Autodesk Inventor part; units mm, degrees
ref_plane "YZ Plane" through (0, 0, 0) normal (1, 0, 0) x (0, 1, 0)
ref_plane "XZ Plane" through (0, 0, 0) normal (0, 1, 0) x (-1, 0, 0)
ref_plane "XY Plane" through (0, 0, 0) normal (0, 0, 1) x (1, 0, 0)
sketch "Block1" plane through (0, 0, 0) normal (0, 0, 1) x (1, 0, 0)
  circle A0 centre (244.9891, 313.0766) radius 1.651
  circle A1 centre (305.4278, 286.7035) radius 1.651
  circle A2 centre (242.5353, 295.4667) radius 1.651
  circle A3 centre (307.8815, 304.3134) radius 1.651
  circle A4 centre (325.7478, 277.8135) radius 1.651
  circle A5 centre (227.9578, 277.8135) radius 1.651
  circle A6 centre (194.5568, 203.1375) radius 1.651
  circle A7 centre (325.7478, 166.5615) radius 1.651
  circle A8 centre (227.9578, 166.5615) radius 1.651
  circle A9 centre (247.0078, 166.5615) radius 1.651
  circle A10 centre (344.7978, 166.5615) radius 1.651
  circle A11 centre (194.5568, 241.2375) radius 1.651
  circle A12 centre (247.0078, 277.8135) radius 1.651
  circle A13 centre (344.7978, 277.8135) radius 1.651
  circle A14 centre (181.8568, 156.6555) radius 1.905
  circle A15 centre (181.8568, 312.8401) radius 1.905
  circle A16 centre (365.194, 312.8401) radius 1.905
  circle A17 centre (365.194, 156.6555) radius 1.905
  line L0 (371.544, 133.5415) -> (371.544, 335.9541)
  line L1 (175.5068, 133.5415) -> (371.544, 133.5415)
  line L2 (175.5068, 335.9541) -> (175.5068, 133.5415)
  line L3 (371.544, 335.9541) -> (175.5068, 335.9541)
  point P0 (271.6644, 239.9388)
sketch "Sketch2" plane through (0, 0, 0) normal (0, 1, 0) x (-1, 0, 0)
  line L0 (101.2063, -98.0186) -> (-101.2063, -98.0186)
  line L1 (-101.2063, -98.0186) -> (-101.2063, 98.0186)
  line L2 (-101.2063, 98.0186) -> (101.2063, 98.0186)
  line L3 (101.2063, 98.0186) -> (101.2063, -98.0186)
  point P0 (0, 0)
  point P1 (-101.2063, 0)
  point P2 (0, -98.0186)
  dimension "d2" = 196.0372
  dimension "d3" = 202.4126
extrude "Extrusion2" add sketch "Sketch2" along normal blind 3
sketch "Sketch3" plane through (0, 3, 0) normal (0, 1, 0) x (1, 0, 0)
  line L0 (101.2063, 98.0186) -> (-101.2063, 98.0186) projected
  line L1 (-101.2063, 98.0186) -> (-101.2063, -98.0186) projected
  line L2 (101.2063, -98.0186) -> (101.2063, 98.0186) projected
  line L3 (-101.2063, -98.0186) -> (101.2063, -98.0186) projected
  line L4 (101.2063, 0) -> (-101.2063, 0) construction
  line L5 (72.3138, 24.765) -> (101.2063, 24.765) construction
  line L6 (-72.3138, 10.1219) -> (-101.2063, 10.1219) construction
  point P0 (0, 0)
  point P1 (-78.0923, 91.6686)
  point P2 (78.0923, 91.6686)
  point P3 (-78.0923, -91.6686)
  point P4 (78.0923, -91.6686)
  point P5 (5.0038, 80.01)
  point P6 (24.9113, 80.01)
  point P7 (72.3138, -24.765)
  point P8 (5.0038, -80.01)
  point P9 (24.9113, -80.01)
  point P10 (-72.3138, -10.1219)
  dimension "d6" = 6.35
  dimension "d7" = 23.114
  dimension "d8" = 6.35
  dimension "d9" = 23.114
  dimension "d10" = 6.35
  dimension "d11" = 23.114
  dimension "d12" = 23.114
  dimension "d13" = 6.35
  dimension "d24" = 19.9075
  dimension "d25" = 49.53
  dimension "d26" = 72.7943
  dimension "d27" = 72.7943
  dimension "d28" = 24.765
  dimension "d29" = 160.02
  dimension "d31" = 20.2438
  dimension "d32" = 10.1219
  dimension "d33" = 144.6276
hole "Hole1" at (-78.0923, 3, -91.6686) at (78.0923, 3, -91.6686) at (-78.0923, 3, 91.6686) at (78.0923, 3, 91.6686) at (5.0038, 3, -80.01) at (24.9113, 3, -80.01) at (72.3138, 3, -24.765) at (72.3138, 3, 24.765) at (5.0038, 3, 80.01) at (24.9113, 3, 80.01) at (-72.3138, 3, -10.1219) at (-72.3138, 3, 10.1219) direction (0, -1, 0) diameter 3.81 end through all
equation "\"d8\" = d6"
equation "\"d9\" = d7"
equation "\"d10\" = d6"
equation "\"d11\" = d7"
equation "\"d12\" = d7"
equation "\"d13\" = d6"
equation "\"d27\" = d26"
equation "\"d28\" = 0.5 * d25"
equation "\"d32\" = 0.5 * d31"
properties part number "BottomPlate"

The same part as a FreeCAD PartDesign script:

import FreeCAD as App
import Part
import Sketcher

V = App.Vector
Q = App.Units.Quantity


def add_polygon(sketch, points):
    """Adds a closed chain of lines whose ends are joined by coincident constraints."""
    first, n = sketch.GeometryCount, len(points)
    for a, b in zip(points, points[1:] + points[:1]):
        sketch.addGeometry(Part.LineSegment(App.Vector(*a, 0), App.Vector(*b, 0)), False)
    for i in range(n):
        sketch.addConstraint(Sketcher.Constraint("Coincident", first + i, 2, first + (i + 1) % n, 1))

doc = App.newDocument("Part")
body = doc.addObject("PartDesign::Body", "Body")

sketch1 = body.newObject("Sketcher::SketchObject", "Sketch")
sketch1.AttachmentSupport = (doc.getObject("XZ_Plane"), [""])
sketch1.MapMode = "FlatFace"
add_polygon(sketch1, [(101.2063, -98.0186), (-101.2063, -98.0186), (-101.2063, 98.0186), (101.2063, 98.0186)])
sketch1.addConstraint(Sketcher.Constraint("Horizontal", 0))
sketch1.addConstraint(Sketcher.Constraint("Vertical", 1))
sketch1.addConstraint(Sketcher.Constraint("Horizontal", 2))
sketch1.addConstraint(Sketcher.Constraint("Vertical", 3))
sketch1.addConstraint(Sketcher.Constraint("Symmetric", 0, 2, 2, 2, -1, 1))
sketch1.addConstraint(Sketcher.Constraint("DistanceX", 0, 2, 0, 1, Q("7.969 in")))
sketch1.addConstraint(Sketcher.Constraint("DistanceY", 1, 1, 1, 2, Q("7.718 in")))
pad1 = body.newObject("PartDesign::Pad", "Pad")
pad1.Profile = sketch1
pad1.Length = Q("0.1181102 in")
pad1.Reversed = True

sketch2 = body.newObject("Sketcher::SketchObject", "Sketch001")
sketch2.AttachmentSupport = (doc.getObject("XZ_Plane"), [""])
sketch2.MapMode = "FlatFace"
sketch2.AttachmentOffset = App.Placement(V(0, 0, -0.1181102 * 25.4), App.Rotation())
sketch2.addGeometry(Part.Circle(V(-78.0923, -91.6686, 0), V(0, 0, 1), 1.905), False)
sketch2.addGeometry(Part.Circle(V(78.0923, -91.6686, 0), V(0, 0, 1), 1.905), False)
sketch2.addGeometry(Part.Circle(V(-78.0923, 91.6686, 0), V(0, 0, 1), 1.905), False)
sketch2.addGeometry(Part.Circle(V(78.0923, 91.6686, 0), V(0, 0, 1), 1.905), False)
sketch2.addGeometry(Part.Circle(V(5.0038, -80.01, 0), V(0, 0, 1), 1.905), False)
sketch2.addGeometry(Part.Circle(V(24.9113, -80.01, 0), V(0, 0, 1), 1.905), False)
sketch2.addGeometry(Part.Circle(V(72.3138, -24.765, 0), V(0, 0, 1), 1.905), False)
sketch2.addGeometry(Part.Circle(V(72.3138, 24.765, 0), V(0, 0, 1), 1.905), False)
sketch2.addGeometry(Part.Circle(V(5.0038, 80.01, 0), V(0, 0, 1), 1.905), False)
sketch2.addGeometry(Part.Circle(V(24.9113, 80.01, 0), V(0, 0, 1), 1.905), False)
sketch2.addGeometry(Part.Circle(V(-72.3138, -10.1219, 0), V(0, 0, 1), 1.905), False)
sketch2.addGeometry(Part.Circle(V(-72.3138, 10.1219, 0), V(0, 0, 1), 1.905), False)
sketch2.addConstraint(Sketcher.Constraint("Equal", 0, 1))
sketch2.addConstraint(Sketcher.Constraint("Equal", 1, 2))
sketch2.addConstraint(Sketcher.Constraint("Equal", 2, 3))
sketch2.addConstraint(Sketcher.Constraint("Equal", 3, 4))
sketch2.addConstraint(Sketcher.Constraint("Equal", 4, 5))
sketch2.addConstraint(Sketcher.Constraint("Equal", 5, 6))
sketch2.addConstraint(Sketcher.Constraint("Equal", 6, 7))
sketch2.addConstraint(Sketcher.Constraint("Equal", 7, 8))
sketch2.addConstraint(Sketcher.Constraint("Equal", 8, 9))
sketch2.addConstraint(Sketcher.Constraint("Equal", 9, 10))
sketch2.addConstraint(Sketcher.Constraint("Equal", 10, 11))
sketch2.addConstraint(Sketcher.Constraint("Symmetric", 1, 3, 2, 3, -1, 1))
sketch2.addConstraint(Sketcher.Constraint("Symmetric", 0, 3, 3, 3, -1, 1))
sketch2.addConstraint(Sketcher.Constraint("Symmetric", 0, 3, 1, 3, -2))
sketch2.addConstraint(Sketcher.Constraint("Symmetric", 6, 3, 7, 3, -1))
sketch2.addConstraint(Sketcher.Constraint("Symmetric", 4, 3, 8, 3, -1))
sketch2.addConstraint(Sketcher.Constraint("Symmetric", 5, 3, 9, 3, -1))
sketch2.addConstraint(Sketcher.Constraint("Symmetric", 10, 3, 11, 3, -1))
sketch2.addConstraint(Sketcher.Constraint("Horizontal", 4, 3, 5, 3))
sketch2.addConstraint(Sketcher.Constraint("Diameter", 0, Q("0.15 in")))
sketch2.addConstraint(Sketcher.Constraint("DistanceY", 4, 3, 8, 3, Q("6.3 in")))
sketch2.addConstraint(Sketcher.Constraint("DistanceX", 4, 3, 6, 3, Q("2.65 in")))
sketch2.addConstraint(Sketcher.Constraint("DistanceY", 6, 3, 7, 3, Q("1.95 in")))
sketch2.addConstraint(Sketcher.Constraint("DistanceY", 0, 3, -1, 1, Q("3.609 in")))
sketch2.addConstraint(Sketcher.Constraint("DistanceX", -1, 1, 4, 3, Q("0.197 in")))
sketch2.addConstraint(Sketcher.Constraint("DistanceX", 10, 3, -1, 1, Q("2.847 in")))
sketch2.addConstraint(Sketcher.Constraint("DistanceX", 0, 3, 1, 3, Q("6.149 in")))
sketch2.addConstraint(Sketcher.Constraint("DistanceY", 10, 3, 11, 3, Q("0.797 in")))
sketch2.addConstraint(Sketcher.Constraint("DistanceX", -1, 1, 5, 3, Q("24.9113 mm")))
doc.recompute()
hole = body.newObject("PartDesign::Hole", "Hole")
hole.Profile = sketch2
hole.ThreadType = "None"
hole.Diameter = Q("0.15 in")
hole.DepthType = "ThroughAll"
hole.Reversed = True

doc.recompute()
